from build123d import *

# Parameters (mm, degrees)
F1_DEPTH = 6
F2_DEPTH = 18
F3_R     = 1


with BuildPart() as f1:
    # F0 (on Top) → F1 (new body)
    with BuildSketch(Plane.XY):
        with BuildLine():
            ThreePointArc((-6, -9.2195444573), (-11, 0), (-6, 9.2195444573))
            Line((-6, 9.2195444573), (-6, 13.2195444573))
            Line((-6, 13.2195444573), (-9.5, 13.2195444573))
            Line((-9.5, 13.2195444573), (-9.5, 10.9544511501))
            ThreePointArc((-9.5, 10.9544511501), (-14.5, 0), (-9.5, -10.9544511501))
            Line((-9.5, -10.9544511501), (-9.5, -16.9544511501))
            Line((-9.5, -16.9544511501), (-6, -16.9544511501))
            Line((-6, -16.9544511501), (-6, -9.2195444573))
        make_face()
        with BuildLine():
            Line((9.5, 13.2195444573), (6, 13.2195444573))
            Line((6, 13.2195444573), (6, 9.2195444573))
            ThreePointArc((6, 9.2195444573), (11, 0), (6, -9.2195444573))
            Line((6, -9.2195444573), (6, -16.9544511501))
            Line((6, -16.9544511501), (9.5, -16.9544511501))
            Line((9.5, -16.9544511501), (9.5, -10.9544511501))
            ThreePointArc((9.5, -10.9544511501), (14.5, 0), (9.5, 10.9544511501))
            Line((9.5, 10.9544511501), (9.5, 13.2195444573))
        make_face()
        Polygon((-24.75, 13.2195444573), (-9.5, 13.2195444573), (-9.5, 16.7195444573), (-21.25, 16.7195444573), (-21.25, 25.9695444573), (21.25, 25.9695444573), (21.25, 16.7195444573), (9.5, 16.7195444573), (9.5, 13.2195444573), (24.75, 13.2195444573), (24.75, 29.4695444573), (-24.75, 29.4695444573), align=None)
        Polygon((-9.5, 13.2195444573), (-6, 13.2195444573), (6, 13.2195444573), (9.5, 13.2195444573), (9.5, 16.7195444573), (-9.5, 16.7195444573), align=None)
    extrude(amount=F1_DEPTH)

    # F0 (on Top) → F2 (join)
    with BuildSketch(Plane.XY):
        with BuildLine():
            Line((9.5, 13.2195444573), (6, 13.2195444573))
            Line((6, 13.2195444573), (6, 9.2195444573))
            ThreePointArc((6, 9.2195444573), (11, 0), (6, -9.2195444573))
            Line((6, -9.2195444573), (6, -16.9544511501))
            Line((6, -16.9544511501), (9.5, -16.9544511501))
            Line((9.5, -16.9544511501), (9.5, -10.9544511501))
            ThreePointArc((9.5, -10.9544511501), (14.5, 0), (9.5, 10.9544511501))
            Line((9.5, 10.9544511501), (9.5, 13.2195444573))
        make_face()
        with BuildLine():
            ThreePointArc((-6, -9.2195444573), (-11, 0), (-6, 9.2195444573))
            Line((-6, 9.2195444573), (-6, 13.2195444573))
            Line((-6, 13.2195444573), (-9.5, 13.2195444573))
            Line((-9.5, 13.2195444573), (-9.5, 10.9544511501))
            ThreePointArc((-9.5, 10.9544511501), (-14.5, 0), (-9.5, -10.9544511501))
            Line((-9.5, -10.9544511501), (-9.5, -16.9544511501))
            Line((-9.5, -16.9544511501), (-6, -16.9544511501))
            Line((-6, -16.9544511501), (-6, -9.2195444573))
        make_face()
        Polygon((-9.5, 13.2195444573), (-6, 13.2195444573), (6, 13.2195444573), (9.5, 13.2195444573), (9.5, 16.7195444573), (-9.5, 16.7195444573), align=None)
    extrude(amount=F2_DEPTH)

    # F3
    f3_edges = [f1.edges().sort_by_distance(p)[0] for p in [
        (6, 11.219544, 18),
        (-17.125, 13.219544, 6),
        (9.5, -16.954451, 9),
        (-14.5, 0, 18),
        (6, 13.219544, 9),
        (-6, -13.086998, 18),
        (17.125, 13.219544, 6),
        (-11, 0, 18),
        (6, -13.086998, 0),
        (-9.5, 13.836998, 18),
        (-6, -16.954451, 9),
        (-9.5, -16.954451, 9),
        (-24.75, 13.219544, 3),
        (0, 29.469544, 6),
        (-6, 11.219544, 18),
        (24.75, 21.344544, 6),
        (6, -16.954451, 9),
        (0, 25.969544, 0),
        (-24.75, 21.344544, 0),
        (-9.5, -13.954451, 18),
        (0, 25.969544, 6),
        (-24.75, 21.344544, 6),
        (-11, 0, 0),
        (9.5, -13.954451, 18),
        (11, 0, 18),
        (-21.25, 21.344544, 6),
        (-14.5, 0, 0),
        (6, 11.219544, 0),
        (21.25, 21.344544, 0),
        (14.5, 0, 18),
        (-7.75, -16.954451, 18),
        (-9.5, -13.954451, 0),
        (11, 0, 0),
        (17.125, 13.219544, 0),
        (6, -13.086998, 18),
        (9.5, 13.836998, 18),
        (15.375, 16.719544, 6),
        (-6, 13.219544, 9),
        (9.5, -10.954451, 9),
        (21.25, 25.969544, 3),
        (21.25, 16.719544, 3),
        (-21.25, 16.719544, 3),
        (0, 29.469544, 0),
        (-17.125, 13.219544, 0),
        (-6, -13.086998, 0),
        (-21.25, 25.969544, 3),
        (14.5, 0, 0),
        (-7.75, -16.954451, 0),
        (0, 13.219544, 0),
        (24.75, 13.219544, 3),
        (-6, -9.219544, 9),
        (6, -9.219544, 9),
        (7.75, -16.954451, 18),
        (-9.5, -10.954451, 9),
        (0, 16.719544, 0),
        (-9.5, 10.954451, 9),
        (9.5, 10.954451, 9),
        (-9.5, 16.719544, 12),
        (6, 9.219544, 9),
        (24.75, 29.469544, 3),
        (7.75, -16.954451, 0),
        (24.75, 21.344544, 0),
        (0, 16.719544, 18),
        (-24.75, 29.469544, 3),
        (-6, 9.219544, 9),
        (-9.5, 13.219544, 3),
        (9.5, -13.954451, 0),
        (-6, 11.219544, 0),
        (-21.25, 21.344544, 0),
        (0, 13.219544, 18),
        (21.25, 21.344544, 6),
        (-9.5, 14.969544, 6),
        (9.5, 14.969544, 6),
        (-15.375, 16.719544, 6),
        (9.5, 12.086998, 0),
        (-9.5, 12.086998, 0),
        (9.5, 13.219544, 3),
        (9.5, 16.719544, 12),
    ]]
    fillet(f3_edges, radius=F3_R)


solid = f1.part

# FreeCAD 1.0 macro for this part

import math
import FreeCAD as App
import Part
import Sketcher
from FreeCAD import Vector

doc = App.newDocument("Part")
body = doc.addObject("PartDesign::Body", "Body")

# Sketch on XY plane
sketch1 = body.newObject("Sketcher::SketchObject", "Sketch")
sketch1.AttachmentSupport = (doc.getObject("XY_Plane"), [""])
sketch1.MapMode = "FlatFace"
sketch1.addGeometry([
    Part.ArcOfCircle(Part.Circle(Vector(0, 0, 0), Vector(0, 0, 1), 11), math.radians(123), math.radians(237)),  # 0
    Part.LineSegment(Vector(-6, 9.2, 0), Vector(-6, 13.2, 0)),  # 1
    Part.LineSegment(Vector(-6, 13.2, 0), Vector(6, 13.2, 0)),  # 2
    Part.LineSegment(Vector(6, 13.2, 0), Vector(6, 9.2, 0)),  # 3
    Part.ArcOfCircle(Part.Circle(Vector(0, 0, 0), Vector(0, 0, 1), 11), math.radians(-57), math.radians(57)),  # 4
    Part.LineSegment(Vector(6, -9.2, 0), Vector(6, -17, 0)),  # 5
    Part.LineSegment(Vector(6, -17, 0), Vector(9.5, -17, 0)),  # 6
    Part.LineSegment(Vector(9.5, -17, 0), Vector(9.5, -11, 0)),  # 7
    Part.ArcOfCircle(Part.Circle(Vector(0, 0, 0), Vector(0, 0, 1), 14.5), math.radians(-49), math.radians(49)),  # 8
    Part.LineSegment(Vector(9.5, 11, 0), Vector(9.5, 13.2, 0)),  # 9
    Part.LineSegment(Vector(9.5, 13.2, 0), Vector(24.8, 13.2, 0)),  # 10
    Part.LineSegment(Vector(24.8, 13.2, 0), Vector(24.8, 29.5, 0)),  # 11
    Part.LineSegment(Vector(24.8, 29.5, 0), Vector(-24.8, 29.5, 0)),  # 12
    Part.LineSegment(Vector(-24.8, 29.5, 0), Vector(-24.8, 13.2, 0)),  # 13
    Part.LineSegment(Vector(-24.8, 13.2, 0), Vector(-9.5, 13.2, 0)),  # 14
    Part.LineSegment(Vector(-9.5, 13.2, 0), Vector(-9.5, 11, 0)),  # 15
    Part.ArcOfCircle(Part.Circle(Vector(0, 0, 0), Vector(0, 0, 1), 14.5), math.radians(131), math.radians(229)),  # 16
    Part.LineSegment(Vector(-9.5, -11, 0), Vector(-9.5, -17, 0)),  # 17
    Part.LineSegment(Vector(-9.5, -17, 0), Vector(-6, -17, 0)),  # 18
    Part.LineSegment(Vector(-6, -17, 0), Vector(-6, -9.2, 0)),  # 19
    Part.LineSegment(Vector(-21.2, 16.7, 0), Vector(-21.2, 26, 0)),  # 20
    Part.LineSegment(Vector(-21.2, 26, 0), Vector(21.2, 26, 0)),  # 21
    Part.LineSegment(Vector(21.2, 26, 0), Vector(21.2, 16.7, 0)),  # 22
    Part.LineSegment(Vector(21.2, 16.7, 0), Vector(-21.2, 16.7, 0)),  # 23
], False)
sketch1.addConstraint([
    Sketcher.Constraint("Coincident", 0, 1, 1, 1),
    Sketcher.Constraint("Coincident", 1, 2, 2, 1),
    Sketcher.Constraint("Coincident", 2, 2, 3, 1),
    Sketcher.Constraint("Coincident", 3, 2, 4, 2),
    Sketcher.Constraint("Coincident", 4, 1, 5, 1),
    Sketcher.Constraint("Coincident", 5, 2, 6, 1),
    Sketcher.Constraint("Coincident", 6, 2, 7, 1),
    Sketcher.Constraint("Coincident", 7, 2, 8, 1),
    Sketcher.Constraint("Coincident", 8, 2, 9, 1),
    Sketcher.Constraint("Coincident", 9, 2, 10, 1),
    Sketcher.Constraint("Coincident", 10, 2, 11, 1),
    Sketcher.Constraint("Coincident", 11, 2, 12, 1),
    Sketcher.Constraint("Coincident", 12, 2, 13, 1),
    Sketcher.Constraint("Coincident", 13, 2, 14, 1),
    Sketcher.Constraint("Coincident", 14, 2, 15, 1),
    Sketcher.Constraint("Coincident", 15, 2, 16, 1),
    Sketcher.Constraint("Coincident", 16, 2, 17, 1),
    Sketcher.Constraint("Coincident", 17, 2, 18, 1),
    Sketcher.Constraint("Coincident", 18, 2, 19, 1),
    Sketcher.Constraint("Coincident", 19, 2, 0, 2),
    Sketcher.Constraint("Coincident", 20, 2, 21, 1),
    Sketcher.Constraint("Coincident", 21, 2, 22, 1),
    Sketcher.Constraint("Coincident", 22, 2, 23, 1),
    Sketcher.Constraint("Coincident", 23, 2, 20, 1),
    Sketcher.Constraint("Vertical", 1),
    Sketcher.Constraint("Horizontal", 2),
    Sketcher.Constraint("Vertical", 3),
    Sketcher.Constraint("Vertical", 5),
    Sketcher.Constraint("Horizontal", 6),
    Sketcher.Constraint("Vertical", 7),
    Sketcher.Constraint("Vertical", 9),
    Sketcher.Constraint("Horizontal", 10),
    Sketcher.Constraint("Vertical", 11),
    Sketcher.Constraint("Horizontal", 12),
    Sketcher.Constraint("Vertical", 13),
    Sketcher.Constraint("Horizontal", 14),
    Sketcher.Constraint("Vertical", 15),
    Sketcher.Constraint("Vertical", 17),
    Sketcher.Constraint("Horizontal", 18),
    Sketcher.Constraint("Vertical", 19),
    Sketcher.Constraint("Vertical", 20),
    Sketcher.Constraint("Horizontal", 21),
    Sketcher.Constraint("Vertical", 22),
    Sketcher.Constraint("Horizontal", 23),
    Sketcher.Constraint("Coincident", 0, 3, -1, 1),
    Sketcher.Constraint("Coincident", 4, 3, -1, 1),
    Sketcher.Constraint("Coincident", 8, 3, -1, 1),
    Sketcher.Constraint("Coincident", 16, 3, -1, 1),
    Sketcher.Constraint("Equal", 0, 4),
    Sketcher.Constraint("Equal", 8, 16),
    Sketcher.Constraint("Symmetric", 10, 2, 13, 2, -2),
    Sketcher.Constraint("Symmetric", 6, 2, 17, 2, -2),
    Sketcher.Constraint("Horizontal", 0, 1, 3, 2),
    Sketcher.Constraint("Horizontal", 2, 2, 9, 2),
    Sketcher.Constraint("Horizontal", 8, 2, 15, 2),
    Sketcher.Constraint("Horizontal", 4, 1, 19, 2),
    Sketcher.Constraint("Vertical", 3, 2, 4, 1),
    Sketcher.Constraint("Vertical", 7, 2, 8, 2),
    Sketcher.Constraint("Radius", 0, 11.0),
    Sketcher.Constraint("Radius", 8, 14.5),
    Sketcher.Constraint("DistanceX", 2, 1, 2, 2, 12.0),
    Sketcher.Constraint("DistanceY", 1, 1, 1, 2, 4.0),
    Sketcher.Constraint("DistanceY", 7, 1, 7, 2, 6.0),
    Sketcher.Constraint("DistanceX", 6, 1, 6, 2, 3.5),
    Sketcher.Constraint("DistanceX", 12, 2, 12, 1, 49.5),
    Sketcher.Constraint("DistanceX", 21, 1, 21, 2, 42.5),
    Sketcher.Constraint("DistanceY", 11, 1, 11, 2, 16.25),
    Sketcher.Constraint("DistanceY", 20, 1, 20, 2, 9.25),
    Sketcher.Constraint("DistanceX", 12, 2, 20, 2, 3.5),
    Sketcher.Constraint("DistanceY", 20, 2, 12, 2, 3.5),
])
pad1 = body.newObject("PartDesign::Pad", "Pad")
pad1.Profile = sketch1
pad1.Length = 6

# Sketch on XY plane
sketch2 = body.newObject("Sketcher::SketchObject", "Sketch001")
sketch2.AttachmentSupport = (doc.getObject("XY_Plane"), [""])
sketch2.MapMode = "FlatFace"
sketch2.addGeometry([
    Part.LineSegment(Vector(6, 13.2, 0), Vector(6, 9.2, 0)),  # 0
    Part.ArcOfCircle(Part.Circle(Vector(0, 0, 0), Vector(0, 0, 1), 11), math.radians(-57), math.radians(57)),  # 1
    Part.LineSegment(Vector(6, -9.2, 0), Vector(6, -17, 0)),  # 2
    Part.LineSegment(Vector(6, -17, 0), Vector(9.5, -17, 0)),  # 3
    Part.LineSegment(Vector(9.5, -17, 0), Vector(9.5, -11, 0)),  # 4
    Part.ArcOfCircle(Part.Circle(Vector(0, 0, 0), Vector(0, 0, 1), 14.5), math.radians(-49), math.radians(49)),  # 5
    Part.LineSegment(Vector(9.5, 11, 0), Vector(9.5, 16.7, 0)),  # 6
    Part.LineSegment(Vector(9.5, 16.7, 0), Vector(-9.5, 16.7, 0)),  # 7
    Part.LineSegment(Vector(-9.5, 16.7, 0), Vector(-9.5, 11, 0)),  # 8
    Part.ArcOfCircle(Part.Circle(Vector(0, 0, 0), Vector(0, 0, 1), 14.5), math.radians(131), math.radians(229)),  # 9
    Part.LineSegment(Vector(-9.5, -11, 0), Vector(-9.5, -17, 0)),  # 10
    Part.LineSegment(Vector(-9.5, -17, 0), Vector(-6, -17, 0)),  # 11
    Part.LineSegment(Vector(-6, -17, 0), Vector(-6, -9.2, 0)),  # 12
    Part.ArcOfCircle(Part.Circle(Vector(0, 0, 0), Vector(0, 0, 1), 11), math.radians(123), math.radians(237)),  # 13
    Part.LineSegment(Vector(-6, 9.2, 0), Vector(-6, 13.2, 0)),  # 14
    Part.LineSegment(Vector(-6, 13.2, 0), Vector(6, 13.2, 0)),  # 15
], False)
sketch2.addConstraint([
    Sketcher.Constraint("Coincident", 0, 2, 1, 2),
    Sketcher.Constraint("Coincident", 1, 1, 2, 1),
    Sketcher.Constraint("Coincident", 2, 2, 3, 1),
    Sketcher.Constraint("Coincident", 3, 2, 4, 1),
    Sketcher.Constraint("Coincident", 4, 2, 5, 1),
    Sketcher.Constraint("Coincident", 5, 2, 6, 1),
    Sketcher.Constraint("Coincident", 6, 2, 7, 1),
    Sketcher.Constraint("Coincident", 7, 2, 8, 1),
    Sketcher.Constraint("Coincident", 8, 2, 9, 1),
    Sketcher.Constraint("Coincident", 9, 2, 10, 1),
    Sketcher.Constraint("Coincident", 10, 2, 11, 1),
    Sketcher.Constraint("Coincident", 11, 2, 12, 1),
    Sketcher.Constraint("Coincident", 12, 2, 13, 2),
    Sketcher.Constraint("Coincident", 13, 1, 14, 1),
    Sketcher.Constraint("Coincident", 14, 2, 15, 1),
    Sketcher.Constraint("Coincident", 15, 2, 0, 1),
    Sketcher.Constraint("Vertical", 0),
    Sketcher.Constraint("Vertical", 2),
    Sketcher.Constraint("Horizontal", 3),
    Sketcher.Constraint("Vertical", 4),
    Sketcher.Constraint("Vertical", 6),
    Sketcher.Constraint("Horizontal", 7),
    Sketcher.Constraint("Vertical", 8),
    Sketcher.Constraint("Vertical", 10),
    Sketcher.Constraint("Horizontal", 11),
    Sketcher.Constraint("Vertical", 12),
    Sketcher.Constraint("Vertical", 14),
    Sketcher.Constraint("Horizontal", 15),
    Sketcher.Constraint("Coincident", 1, 3, -1, 1),
    Sketcher.Constraint("Coincident", 5, 3, -1, 1),
    Sketcher.Constraint("Coincident", 9, 3, -1, 1),
    Sketcher.Constraint("Coincident", 13, 3, -1, 1),
    Sketcher.Constraint("Equal", 5, 9),
    Sketcher.Constraint("Equal", 1, 13),
    Sketcher.Constraint("Symmetric", 3, 2, 10, 2, -2),
    Sketcher.Constraint("Horizontal", 5, 2, 8, 2),
    Sketcher.Constraint("Horizontal", 1, 1, 12, 2),
    Sketcher.Constraint("Horizontal", 0, 2, 13, 1),
    Sketcher.Constraint("Vertical", 0, 2, 1, 1),
    Sketcher.Constraint("Vertical", 4, 2, 5, 2),
    Sketcher.Constraint("Radius", 1, 11.0),
    Sketcher.Constraint("Radius", 5, 14.5),
    Sketcher.Constraint("DistanceX", 7, 2, 7, 1, 19.0),
    Sketcher.Constraint("DistanceX", 15, 1, 15, 2, 12.0),
    Sketcher.Constraint("DistanceY", 0, 2, 0, 1, 4.0),
    Sketcher.Constraint("DistanceY", 4, 1, 4, 2, 6.0),
    Sketcher.Constraint("DistanceY", 0, 2, 6, 2, 7.5),
])
pad2 = body.newObject("PartDesign::Pad", "Pad001")
pad2.Profile = sketch2
pad2.Length = 18
doc.recompute()

fillet = body.newObject("PartDesign::Fillet", "Fillet")
fillet.Base = (pad2, ["Edge1"])
fillet.UseAllEdges = True
fillet.Radius = 1

doc.recompute()
